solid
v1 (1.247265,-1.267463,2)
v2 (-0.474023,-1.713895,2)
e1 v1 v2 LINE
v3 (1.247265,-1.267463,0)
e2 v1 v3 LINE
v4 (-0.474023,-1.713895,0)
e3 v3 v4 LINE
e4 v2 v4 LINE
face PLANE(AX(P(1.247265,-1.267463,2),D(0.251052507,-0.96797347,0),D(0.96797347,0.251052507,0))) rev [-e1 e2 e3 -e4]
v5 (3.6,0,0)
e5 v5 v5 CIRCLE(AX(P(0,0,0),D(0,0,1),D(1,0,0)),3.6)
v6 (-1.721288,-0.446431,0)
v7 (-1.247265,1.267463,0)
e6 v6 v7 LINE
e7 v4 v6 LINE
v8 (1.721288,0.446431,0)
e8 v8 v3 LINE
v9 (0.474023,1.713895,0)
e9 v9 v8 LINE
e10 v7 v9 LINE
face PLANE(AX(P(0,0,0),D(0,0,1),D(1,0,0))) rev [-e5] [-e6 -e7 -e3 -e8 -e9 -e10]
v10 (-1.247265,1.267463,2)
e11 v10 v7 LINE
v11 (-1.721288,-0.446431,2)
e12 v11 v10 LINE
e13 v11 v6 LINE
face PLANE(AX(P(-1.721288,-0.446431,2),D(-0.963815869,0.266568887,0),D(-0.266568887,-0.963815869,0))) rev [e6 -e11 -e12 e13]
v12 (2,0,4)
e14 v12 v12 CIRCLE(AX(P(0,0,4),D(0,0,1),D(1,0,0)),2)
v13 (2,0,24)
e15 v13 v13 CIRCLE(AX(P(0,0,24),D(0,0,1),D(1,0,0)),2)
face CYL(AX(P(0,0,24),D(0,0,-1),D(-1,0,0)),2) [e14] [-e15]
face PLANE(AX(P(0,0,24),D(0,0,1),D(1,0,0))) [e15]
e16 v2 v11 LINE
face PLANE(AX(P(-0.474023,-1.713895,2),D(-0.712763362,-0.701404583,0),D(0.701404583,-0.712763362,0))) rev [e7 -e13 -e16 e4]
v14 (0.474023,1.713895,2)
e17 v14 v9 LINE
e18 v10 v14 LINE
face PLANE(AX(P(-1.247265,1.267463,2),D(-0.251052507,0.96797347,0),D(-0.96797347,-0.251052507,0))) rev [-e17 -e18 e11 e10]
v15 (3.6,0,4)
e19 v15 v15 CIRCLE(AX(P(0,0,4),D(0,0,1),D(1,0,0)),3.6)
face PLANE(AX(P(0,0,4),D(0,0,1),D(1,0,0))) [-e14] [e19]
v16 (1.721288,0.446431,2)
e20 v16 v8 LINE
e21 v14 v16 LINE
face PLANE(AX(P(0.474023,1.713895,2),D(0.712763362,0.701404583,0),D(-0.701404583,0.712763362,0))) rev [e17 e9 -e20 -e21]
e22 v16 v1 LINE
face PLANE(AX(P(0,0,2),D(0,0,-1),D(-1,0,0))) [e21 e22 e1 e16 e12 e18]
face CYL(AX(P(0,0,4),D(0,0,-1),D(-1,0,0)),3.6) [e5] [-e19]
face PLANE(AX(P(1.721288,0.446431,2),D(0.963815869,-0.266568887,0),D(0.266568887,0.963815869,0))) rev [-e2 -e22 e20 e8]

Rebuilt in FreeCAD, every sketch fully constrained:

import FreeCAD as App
import Part
import Sketcher


def add_polygon(sketch, points):
    """Adds a closed chain of lines whose ends are joined by coincident constraints."""
    first, n = sketch.GeometryCount, len(points)
    for a, b in zip(points, points[1:] + points[:1]):
        sketch.addGeometry(Part.LineSegment(App.Vector(*a, 0), App.Vector(*b, 0)), False)
    for i in range(n):
        sketch.addConstraint(Sketcher.Constraint("Coincident", first + i, 2, first + (i + 1) % n, 1))

doc = App.newDocument("Part")
body = doc.addObject("PartDesign::Body", "Body")

sketch1 = body.newObject("Sketcher::SketchObject", "Sketch")
sketch1.AttachmentSupport = (doc.getObject("XY_Plane"), [""])
sketch1.MapMode = "FlatFace"
sketch1.addGeometry(Part.Circle(App.Vector(0, 0, 0), App.Vector(0, 0, 1), 3.6), False)
sketch1.addConstraint([
    Sketcher.Constraint("Coincident", 0, 3, -1, 1),
    Sketcher.Constraint("Diameter", 0, 7.2),
])
pad1 = body.newObject("PartDesign::Pad", "Pad")
pad1.Profile = sketch1
pad1.Length = 4

sketch2 = body.newObject("Sketcher::SketchObject", "Sketch001")
sketch2.AttachmentSupport = (doc.getObject("XY_Plane"), [""])
sketch2.MapMode = "FlatFace"
sketch2.AttachmentOffset = App.Placement(App.Vector(0, 0, 4), App.Rotation())
sketch2.addGeometry(Part.Circle(App.Vector(0, 0, 0), App.Vector(0, 0, 1), 2), False)
sketch2.addConstraint([
    Sketcher.Constraint("Coincident", 0, 3, -1, 1),
    Sketcher.Constraint("Diameter", 0, 4.0),
])
pad2 = body.newObject("PartDesign::Pad", "Pad001")
pad2.Profile = sketch2
pad2.Length = 20

sketch3 = body.newObject("Sketcher::SketchObject", "Sketch002")
sketch3.AttachmentSupport = (doc.getObject("XY_Plane"), [""])
sketch3.MapMode = "FlatFace"
add_polygon(sketch3, [(-1.247265, 1.267463), (0.474023, 1.713895), (1.721288, 0.446431), (1.247265, -1.267463), (-0.474023, -1.713895), (-1.721288, -0.446431)])
sketch3.addConstraint([
    Sketcher.Constraint("Symmetric", 0, 2, 3, 2, -1, 1),
    Sketcher.Constraint("Symmetric", 1, 2, 4, 2, -1, 1),
    Sketcher.Constraint("Symmetric", 2, 2, 5, 2, -1, 1),
    Sketcher.Constraint("Equal", 0, 1),
    Sketcher.Constraint("Equal", 1, 2),
    Sketcher.Constraint("Distance", 0, 1.778239),
    Sketcher.Constraint("DistanceX", -1, 1, 1, 2, 1.721288),
    Sketcher.Constraint("DistanceY", -1, 1, 1, 2, 0.446431),
    Sketcher.Constraint("DistanceX", 0, 2, 2, 2, 0.773242),
])
pocket1 = body.newObject("PartDesign::Pocket", "Pocket")
pocket1.Profile = sketch3
pocket1.Length = 2
pocket1.Reversed = True

doc.recompute()
